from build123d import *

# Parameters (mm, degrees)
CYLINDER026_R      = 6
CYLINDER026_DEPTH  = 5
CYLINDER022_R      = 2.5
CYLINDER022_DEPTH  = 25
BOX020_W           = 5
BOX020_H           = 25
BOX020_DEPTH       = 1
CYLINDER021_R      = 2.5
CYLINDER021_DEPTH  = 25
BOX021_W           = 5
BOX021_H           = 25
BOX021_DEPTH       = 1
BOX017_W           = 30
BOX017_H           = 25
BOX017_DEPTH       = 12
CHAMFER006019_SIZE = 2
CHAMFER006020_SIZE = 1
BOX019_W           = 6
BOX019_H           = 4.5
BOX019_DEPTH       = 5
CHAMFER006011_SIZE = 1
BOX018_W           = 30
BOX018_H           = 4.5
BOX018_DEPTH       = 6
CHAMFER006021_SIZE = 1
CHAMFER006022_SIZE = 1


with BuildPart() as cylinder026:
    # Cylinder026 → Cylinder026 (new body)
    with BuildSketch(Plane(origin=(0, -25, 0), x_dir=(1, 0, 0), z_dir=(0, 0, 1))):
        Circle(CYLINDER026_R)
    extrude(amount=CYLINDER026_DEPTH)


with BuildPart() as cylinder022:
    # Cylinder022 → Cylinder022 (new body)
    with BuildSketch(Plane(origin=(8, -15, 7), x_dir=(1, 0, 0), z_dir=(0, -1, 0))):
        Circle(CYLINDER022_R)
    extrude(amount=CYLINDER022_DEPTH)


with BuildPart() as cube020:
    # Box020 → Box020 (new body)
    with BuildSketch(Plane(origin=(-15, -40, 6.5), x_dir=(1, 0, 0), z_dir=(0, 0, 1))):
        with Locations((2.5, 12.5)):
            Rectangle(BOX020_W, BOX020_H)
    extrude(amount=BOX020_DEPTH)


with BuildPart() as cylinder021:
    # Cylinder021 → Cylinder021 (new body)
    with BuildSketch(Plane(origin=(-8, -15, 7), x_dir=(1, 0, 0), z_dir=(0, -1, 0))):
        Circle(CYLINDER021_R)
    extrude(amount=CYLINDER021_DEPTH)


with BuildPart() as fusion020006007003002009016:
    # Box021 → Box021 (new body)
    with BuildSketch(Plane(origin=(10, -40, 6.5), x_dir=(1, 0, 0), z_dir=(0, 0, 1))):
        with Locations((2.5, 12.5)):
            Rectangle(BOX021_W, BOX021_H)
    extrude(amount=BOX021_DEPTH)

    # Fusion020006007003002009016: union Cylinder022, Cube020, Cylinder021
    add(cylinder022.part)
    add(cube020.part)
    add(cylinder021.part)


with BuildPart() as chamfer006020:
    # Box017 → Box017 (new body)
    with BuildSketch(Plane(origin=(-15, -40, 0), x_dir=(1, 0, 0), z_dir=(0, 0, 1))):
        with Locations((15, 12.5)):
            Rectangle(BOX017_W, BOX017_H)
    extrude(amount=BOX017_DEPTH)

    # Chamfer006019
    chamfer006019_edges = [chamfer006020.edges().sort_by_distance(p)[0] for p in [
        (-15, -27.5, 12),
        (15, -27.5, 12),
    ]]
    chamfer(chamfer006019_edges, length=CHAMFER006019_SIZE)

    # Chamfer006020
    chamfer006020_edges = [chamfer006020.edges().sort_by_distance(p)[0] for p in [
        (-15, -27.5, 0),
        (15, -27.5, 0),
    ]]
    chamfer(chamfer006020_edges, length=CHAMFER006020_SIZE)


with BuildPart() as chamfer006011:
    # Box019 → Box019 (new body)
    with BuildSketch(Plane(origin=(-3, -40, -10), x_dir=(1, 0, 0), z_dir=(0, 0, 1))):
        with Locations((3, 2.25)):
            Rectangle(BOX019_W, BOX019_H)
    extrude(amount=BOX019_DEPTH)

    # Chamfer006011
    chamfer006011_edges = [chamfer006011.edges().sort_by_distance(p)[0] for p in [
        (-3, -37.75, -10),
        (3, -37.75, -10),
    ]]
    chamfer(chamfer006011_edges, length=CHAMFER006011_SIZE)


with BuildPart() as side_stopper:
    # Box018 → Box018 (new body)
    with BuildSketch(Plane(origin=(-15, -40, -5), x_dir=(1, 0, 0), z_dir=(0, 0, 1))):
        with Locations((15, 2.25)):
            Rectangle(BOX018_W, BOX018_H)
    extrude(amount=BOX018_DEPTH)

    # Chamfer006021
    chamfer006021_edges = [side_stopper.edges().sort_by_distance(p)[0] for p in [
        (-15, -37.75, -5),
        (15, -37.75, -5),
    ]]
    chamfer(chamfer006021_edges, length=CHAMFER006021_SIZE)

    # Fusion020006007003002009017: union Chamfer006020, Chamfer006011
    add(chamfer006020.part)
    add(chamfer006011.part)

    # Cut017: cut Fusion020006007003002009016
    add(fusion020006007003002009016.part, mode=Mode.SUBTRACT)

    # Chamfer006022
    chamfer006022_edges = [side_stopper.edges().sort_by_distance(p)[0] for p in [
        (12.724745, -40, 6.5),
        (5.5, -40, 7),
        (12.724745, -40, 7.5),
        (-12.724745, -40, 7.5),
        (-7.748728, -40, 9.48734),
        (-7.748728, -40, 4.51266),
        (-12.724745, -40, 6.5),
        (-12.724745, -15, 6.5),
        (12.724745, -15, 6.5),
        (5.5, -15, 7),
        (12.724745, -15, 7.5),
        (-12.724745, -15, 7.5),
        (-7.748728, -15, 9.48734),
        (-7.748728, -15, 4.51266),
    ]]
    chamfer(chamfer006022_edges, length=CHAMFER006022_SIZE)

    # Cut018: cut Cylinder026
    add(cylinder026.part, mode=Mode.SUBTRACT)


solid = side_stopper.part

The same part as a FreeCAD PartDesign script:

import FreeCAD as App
import Part
import Sketcher
from FreeCAD import Vector
Q = App.Units.Quantity


def edges_at(feature, points):
    """Names of the edges that pass closest to the given points."""
    edges = feature.Shape.Edges
    near = lambda p: min(range(len(edges)), key=lambda i: edges[i].distToShape(Part.Vertex(*p))[0])
    return sorted({f"Edge{near(p) + 1}" for p in points})


def add_polygon(sketch, points):
    """Adds a closed chain of lines whose ends are joined by coincident constraints."""
    first, n = sketch.GeometryCount, len(points)
    for a, b in zip(points, points[1:] + points[:1]):
        sketch.addGeometry(Part.LineSegment(App.Vector(*a, 0), App.Vector(*b, 0)), False)
    for i in range(n):
        sketch.addConstraint(Sketcher.Constraint("Coincident", first + i, 2, first + (i + 1) % n, 1))

doc = App.newDocument("Part")
body = doc.addObject("PartDesign::Body", "Body")

sketch1 = body.newObject("Sketcher::SketchObject", "Sketch")
sketch1.AttachmentSupport = (doc.getObject("XY_Plane"), [""])
sketch1.MapMode = "FlatFace"
sketch1.addGeometry(Part.Circle(Vector(0, -25, 0), Vector(0, 0, 1), 6), False)
sketch1.addConstraint([
    Sketcher.Constraint("PointOnObject", 0, 3, -2),
    Sketcher.Constraint("Diameter", 0, Q("12 mm")),
    Sketcher.Constraint("DistanceY", 0, 3, -1, 1, Q("25 mm")),
])
pad1 = body.newObject("PartDesign::Pad", "Pad")
pad1.Profile = sketch1
pad1.Length = 5
body2 = doc.addObject("PartDesign::Body", "Body001")

sketch2 = body2.newObject("Sketcher::SketchObject", "Sketch001")
sketch2.AttachmentSupport = (doc.getObject("XZ_Plane001"), [""])
sketch2.MapMode = "FlatFace"
sketch2.AttachmentOffset = App.Placement(Vector(0, 0, 15), App.Rotation())
sketch2.addGeometry(Part.Circle(Vector(8, 7, 0), Vector(0, 0, 1), 2.5), False)
sketch2.addConstraint([
    Sketcher.Constraint("Diameter", 0, Q("5 mm")),
    Sketcher.Constraint("DistanceX", -1, 1, 0, 3, Q("8 mm")),
    Sketcher.Constraint("DistanceY", -1, 1, 0, 3, Q("7 mm")),
])
pad2 = body2.newObject("PartDesign::Pad", "Pad001")
pad2.Profile = sketch2
pad2.Length = 25
body3 = doc.addObject("PartDesign::Body", "Body002")

sketch3 = body3.newObject("Sketcher::SketchObject", "Sketch002")
sketch3.AttachmentSupport = (doc.getObject("XY_Plane002"), [""])
sketch3.MapMode = "FlatFace"
sketch3.AttachmentOffset = App.Placement(Vector(0, 0, 6.5), App.Rotation())
add_polygon(sketch3, [(-15, -15), (-15, -40), (-10, -40), (-10, -15)])
sketch3.addConstraint([
    Sketcher.Constraint("Vertical", 0),
    Sketcher.Constraint("Horizontal", 1),
    Sketcher.Constraint("Vertical", 2),
    Sketcher.Constraint("Horizontal", 3),
    Sketcher.Constraint("DistanceX", 1, 1, 1, 2, Q("5 mm")),
    Sketcher.Constraint("DistanceY", 0, 2, 0, 1, Q("25 mm")),
    Sketcher.Constraint("DistanceX", 0, 2, -1, 1, Q("15 mm")),
    Sketcher.Constraint("DistanceY", 0, 2, -1, 1, Q("40 mm")),
])
pad3 = body3.newObject("PartDesign::Pad", "Pad002")
pad3.Profile = sketch3
pad3.Length = 1
body4 = doc.addObject("PartDesign::Body", "Body003")

sketch4 = body4.newObject("Sketcher::SketchObject", "Sketch003")
sketch4.AttachmentSupport = (doc.getObject("XZ_Plane003"), [""])
sketch4.MapMode = "FlatFace"
sketch4.AttachmentOffset = App.Placement(Vector(0, 0, 15), App.Rotation())
sketch4.addGeometry(Part.Circle(Vector(-8, 7, 0), Vector(0, 0, 1), 2.5), False)
sketch4.addConstraint([
    Sketcher.Constraint("Diameter", 0, Q("5 mm")),
    Sketcher.Constraint("DistanceX", 0, 3, -1, 1, Q("8 mm")),
    Sketcher.Constraint("DistanceY", -1, 1, 0, 3, Q("7 mm")),
])
pad4 = body4.newObject("PartDesign::Pad", "Pad003")
pad4.Profile = sketch4
pad4.Length = 25
body5 = doc.addObject("PartDesign::Body", "Body004")
body5.AllowCompound = True

sketch5 = body5.newObject("Sketcher::SketchObject", "Sketch004")
sketch5.AttachmentSupport = (doc.getObject("XY_Plane004"), [""])
sketch5.MapMode = "FlatFace"
sketch5.AttachmentOffset = App.Placement(Vector(0, 0, 6.5), App.Rotation())
add_polygon(sketch5, [(10, -15), (10, -40), (15, -40), (15, -15)])
sketch5.addConstraint([
    Sketcher.Constraint("Vertical", 0),
    Sketcher.Constraint("Horizontal", 1),
    Sketcher.Constraint("Vertical", 2),
    Sketcher.Constraint("Horizontal", 3),
    Sketcher.Constraint("DistanceX", 1, 1, 1, 2, Q("5 mm")),
    Sketcher.Constraint("DistanceY", 0, 2, 0, 1, Q("25 mm")),
    Sketcher.Constraint("DistanceX", -1, 1, 0, 2, Q("10 mm")),
    Sketcher.Constraint("DistanceY", 0, 2, -1, 1, Q("40 mm")),
])
pad5 = body5.newObject("PartDesign::Pad", "Pad004")
pad5.Profile = sketch5
pad5.Length = 1
doc.recompute()

boolean = body5.newObject("PartDesign::Boolean", "Boolean")
boolean.Type = "Fuse"
boolean.addObjects([body2])
doc.recompute()

boolean2 = body5.newObject("PartDesign::Boolean", "Boolean001")
boolean2.Type = "Fuse"
boolean2.addObjects([body3])
doc.recompute()

boolean3 = body5.newObject("PartDesign::Boolean", "Boolean002")
boolean3.Type = "Fuse"
boolean3.addObjects([body4])
body6 = doc.addObject("PartDesign::Body", "Body005")

sketch6 = body6.newObject("Sketcher::SketchObject", "Sketch005")
sketch6.AttachmentSupport = (doc.getObject("XY_Plane005"), [""])
sketch6.MapMode = "FlatFace"
add_polygon(sketch6, [(-15, -15), (-15, -40), (15, -40), (15, -15)])
sketch6.addConstraint([
    Sketcher.Constraint("Vertical", 0),
    Sketcher.Constraint("Horizontal", 1),
    Sketcher.Constraint("Vertical", 2),
    Sketcher.Constraint("Horizontal", 3),
    Sketcher.Constraint("DistanceX", 1, 1, 1, 2, Q("30 mm")),
    Sketcher.Constraint("DistanceY", 0, 2, 0, 1, Q("25 mm")),
    Sketcher.Constraint("DistanceX", 0, 2, -1, 1, Q("15 mm")),
    Sketcher.Constraint("DistanceY", 0, 2, -1, 1, Q("40 mm")),
])
pad6 = body6.newObject("PartDesign::Pad", "Pad005")
pad6.Profile = sketch6
pad6.Length = 12
doc.recompute()

chamfer = body6.newObject("PartDesign::Chamfer", "Chamfer")
chamfer.Base = (pad6, edges_at(pad6, [(-15, -27.5, 12), (15, -27.5, 12)]))
chamfer.Size = 2
doc.recompute()

chamfer2 = body6.newObject("PartDesign::Chamfer", "Chamfer001")
chamfer2.Base = (chamfer, edges_at(chamfer, [(-15, -27.5, 0), (15, -27.5, 0)]))
chamfer2.Size = 1
body7 = doc.addObject("PartDesign::Body", "Body006")

sketch7 = body7.newObject("Sketcher::SketchObject", "Sketch006")
sketch7.AttachmentSupport = (doc.getObject("XY_Plane006"), [""])
sketch7.MapMode = "FlatFace"
sketch7.AttachmentOffset = App.Placement(Vector(0, 0, -10), App.Rotation())
add_polygon(sketch7, [(-3, -35.5), (-3, -40), (3, -40), (3, -35.5)])
sketch7.addConstraint([
    Sketcher.Constraint("Vertical", 0),
    Sketcher.Constraint("Horizontal", 1),
    Sketcher.Constraint("Vertical", 2),
    Sketcher.Constraint("Horizontal", 3),
    Sketcher.Constraint("DistanceX", 1, 1, 1, 2, Q("6 mm")),
    Sketcher.Constraint("DistanceY", 0, 2, 0, 1, Q("4.5 mm")),
    Sketcher.Constraint("DistanceX", 0, 2, -1, 1, Q("3 mm")),
    Sketcher.Constraint("DistanceY", 0, 2, -1, 1, Q("40 mm")),
])
pad7 = body7.newObject("PartDesign::Pad", "Pad006")
pad7.Profile = sketch7
pad7.Length = 5
doc.recompute()

chamfer3 = body7.newObject("PartDesign::Chamfer", "Chamfer002")
chamfer3.Base = (pad7, edges_at(pad7, [(-3, -37.75, -10), (3, -37.75, -10)]))
chamfer3.Size = 1
body8 = doc.addObject("PartDesign::Body", "Body007")

sketch8 = body8.newObject("Sketcher::SketchObject", "Sketch007")
sketch8.AttachmentSupport = (doc.getObject("XY_Plane007"), [""])
sketch8.MapMode = "FlatFace"
sketch8.AttachmentOffset = App.Placement(Vector(0, 0, -5), App.Rotation())
add_polygon(sketch8, [(-15, -35.5), (-15, -40), (15, -40), (15, -35.5)])
sketch8.addConstraint([
    Sketcher.Constraint("Vertical", 0),
    Sketcher.Constraint("Horizontal", 1),
    Sketcher.Constraint("Vertical", 2),
    Sketcher.Constraint("Horizontal", 3),
    Sketcher.Constraint("DistanceX", 1, 1, 1, 2, Q("30 mm")),
    Sketcher.Constraint("DistanceY", 0, 2, 0, 1, Q("4.5 mm")),
    Sketcher.Constraint("DistanceX", 0, 2, -1, 1, Q("15 mm")),
    Sketcher.Constraint("DistanceY", 0, 2, -1, 1, Q("40 mm")),
])
pad8 = body8.newObject("PartDesign::Pad", "Pad007")
pad8.Profile = sketch8
pad8.Length = 6
doc.recompute()

chamfer4 = body8.newObject("PartDesign::Chamfer", "Chamfer003")
chamfer4.Base = (pad8, edges_at(pad8, [(-15, -37.75, -5), (15, -37.75, -5)]))
chamfer4.Size = 1
doc.recompute()

boolean4 = body8.newObject("PartDesign::Boolean", "Boolean003")
boolean4.Type = "Fuse"
boolean4.addObjects([body6])
doc.recompute()

boolean5 = body8.newObject("PartDesign::Boolean", "Boolean004")
boolean5.Type = "Fuse"
boolean5.addObjects([body7])
doc.recompute()

boolean6 = body8.newObject("PartDesign::Boolean", "Boolean005")
boolean6.Type = "Cut"
boolean6.addObjects([body5])
doc.recompute()

chamfer5 = body8.newObject("PartDesign::Chamfer", "Chamfer004")
chamfer5.Base = (boolean6, edges_at(boolean6, [
    (12.725, -40, 6.5),
    (5.5, -40, 7),
    (12.725, -40, 7.5),
    (-12.725, -40, 7.5),
    (-5.5, -40, 7),
    (-5.5, -40, 7),
    (-12.725, -40, 6.5),
    (-12.725, -15, 6.5),
    (12.725, -15, 6.5),
    (5.5, -15, 7),
    (12.725, -15, 7.5),
    (-12.725, -15, 7.5),
    (-5.5, -15, 7),
    (-5.5, -15, 7),
]))
chamfer5.Size = 1
doc.recompute()

boolean7 = body8.newObject("PartDesign::Boolean", "Boolean006")
boolean7.Type = "Cut"
boolean7.addObjects([body])

doc.recompute()
